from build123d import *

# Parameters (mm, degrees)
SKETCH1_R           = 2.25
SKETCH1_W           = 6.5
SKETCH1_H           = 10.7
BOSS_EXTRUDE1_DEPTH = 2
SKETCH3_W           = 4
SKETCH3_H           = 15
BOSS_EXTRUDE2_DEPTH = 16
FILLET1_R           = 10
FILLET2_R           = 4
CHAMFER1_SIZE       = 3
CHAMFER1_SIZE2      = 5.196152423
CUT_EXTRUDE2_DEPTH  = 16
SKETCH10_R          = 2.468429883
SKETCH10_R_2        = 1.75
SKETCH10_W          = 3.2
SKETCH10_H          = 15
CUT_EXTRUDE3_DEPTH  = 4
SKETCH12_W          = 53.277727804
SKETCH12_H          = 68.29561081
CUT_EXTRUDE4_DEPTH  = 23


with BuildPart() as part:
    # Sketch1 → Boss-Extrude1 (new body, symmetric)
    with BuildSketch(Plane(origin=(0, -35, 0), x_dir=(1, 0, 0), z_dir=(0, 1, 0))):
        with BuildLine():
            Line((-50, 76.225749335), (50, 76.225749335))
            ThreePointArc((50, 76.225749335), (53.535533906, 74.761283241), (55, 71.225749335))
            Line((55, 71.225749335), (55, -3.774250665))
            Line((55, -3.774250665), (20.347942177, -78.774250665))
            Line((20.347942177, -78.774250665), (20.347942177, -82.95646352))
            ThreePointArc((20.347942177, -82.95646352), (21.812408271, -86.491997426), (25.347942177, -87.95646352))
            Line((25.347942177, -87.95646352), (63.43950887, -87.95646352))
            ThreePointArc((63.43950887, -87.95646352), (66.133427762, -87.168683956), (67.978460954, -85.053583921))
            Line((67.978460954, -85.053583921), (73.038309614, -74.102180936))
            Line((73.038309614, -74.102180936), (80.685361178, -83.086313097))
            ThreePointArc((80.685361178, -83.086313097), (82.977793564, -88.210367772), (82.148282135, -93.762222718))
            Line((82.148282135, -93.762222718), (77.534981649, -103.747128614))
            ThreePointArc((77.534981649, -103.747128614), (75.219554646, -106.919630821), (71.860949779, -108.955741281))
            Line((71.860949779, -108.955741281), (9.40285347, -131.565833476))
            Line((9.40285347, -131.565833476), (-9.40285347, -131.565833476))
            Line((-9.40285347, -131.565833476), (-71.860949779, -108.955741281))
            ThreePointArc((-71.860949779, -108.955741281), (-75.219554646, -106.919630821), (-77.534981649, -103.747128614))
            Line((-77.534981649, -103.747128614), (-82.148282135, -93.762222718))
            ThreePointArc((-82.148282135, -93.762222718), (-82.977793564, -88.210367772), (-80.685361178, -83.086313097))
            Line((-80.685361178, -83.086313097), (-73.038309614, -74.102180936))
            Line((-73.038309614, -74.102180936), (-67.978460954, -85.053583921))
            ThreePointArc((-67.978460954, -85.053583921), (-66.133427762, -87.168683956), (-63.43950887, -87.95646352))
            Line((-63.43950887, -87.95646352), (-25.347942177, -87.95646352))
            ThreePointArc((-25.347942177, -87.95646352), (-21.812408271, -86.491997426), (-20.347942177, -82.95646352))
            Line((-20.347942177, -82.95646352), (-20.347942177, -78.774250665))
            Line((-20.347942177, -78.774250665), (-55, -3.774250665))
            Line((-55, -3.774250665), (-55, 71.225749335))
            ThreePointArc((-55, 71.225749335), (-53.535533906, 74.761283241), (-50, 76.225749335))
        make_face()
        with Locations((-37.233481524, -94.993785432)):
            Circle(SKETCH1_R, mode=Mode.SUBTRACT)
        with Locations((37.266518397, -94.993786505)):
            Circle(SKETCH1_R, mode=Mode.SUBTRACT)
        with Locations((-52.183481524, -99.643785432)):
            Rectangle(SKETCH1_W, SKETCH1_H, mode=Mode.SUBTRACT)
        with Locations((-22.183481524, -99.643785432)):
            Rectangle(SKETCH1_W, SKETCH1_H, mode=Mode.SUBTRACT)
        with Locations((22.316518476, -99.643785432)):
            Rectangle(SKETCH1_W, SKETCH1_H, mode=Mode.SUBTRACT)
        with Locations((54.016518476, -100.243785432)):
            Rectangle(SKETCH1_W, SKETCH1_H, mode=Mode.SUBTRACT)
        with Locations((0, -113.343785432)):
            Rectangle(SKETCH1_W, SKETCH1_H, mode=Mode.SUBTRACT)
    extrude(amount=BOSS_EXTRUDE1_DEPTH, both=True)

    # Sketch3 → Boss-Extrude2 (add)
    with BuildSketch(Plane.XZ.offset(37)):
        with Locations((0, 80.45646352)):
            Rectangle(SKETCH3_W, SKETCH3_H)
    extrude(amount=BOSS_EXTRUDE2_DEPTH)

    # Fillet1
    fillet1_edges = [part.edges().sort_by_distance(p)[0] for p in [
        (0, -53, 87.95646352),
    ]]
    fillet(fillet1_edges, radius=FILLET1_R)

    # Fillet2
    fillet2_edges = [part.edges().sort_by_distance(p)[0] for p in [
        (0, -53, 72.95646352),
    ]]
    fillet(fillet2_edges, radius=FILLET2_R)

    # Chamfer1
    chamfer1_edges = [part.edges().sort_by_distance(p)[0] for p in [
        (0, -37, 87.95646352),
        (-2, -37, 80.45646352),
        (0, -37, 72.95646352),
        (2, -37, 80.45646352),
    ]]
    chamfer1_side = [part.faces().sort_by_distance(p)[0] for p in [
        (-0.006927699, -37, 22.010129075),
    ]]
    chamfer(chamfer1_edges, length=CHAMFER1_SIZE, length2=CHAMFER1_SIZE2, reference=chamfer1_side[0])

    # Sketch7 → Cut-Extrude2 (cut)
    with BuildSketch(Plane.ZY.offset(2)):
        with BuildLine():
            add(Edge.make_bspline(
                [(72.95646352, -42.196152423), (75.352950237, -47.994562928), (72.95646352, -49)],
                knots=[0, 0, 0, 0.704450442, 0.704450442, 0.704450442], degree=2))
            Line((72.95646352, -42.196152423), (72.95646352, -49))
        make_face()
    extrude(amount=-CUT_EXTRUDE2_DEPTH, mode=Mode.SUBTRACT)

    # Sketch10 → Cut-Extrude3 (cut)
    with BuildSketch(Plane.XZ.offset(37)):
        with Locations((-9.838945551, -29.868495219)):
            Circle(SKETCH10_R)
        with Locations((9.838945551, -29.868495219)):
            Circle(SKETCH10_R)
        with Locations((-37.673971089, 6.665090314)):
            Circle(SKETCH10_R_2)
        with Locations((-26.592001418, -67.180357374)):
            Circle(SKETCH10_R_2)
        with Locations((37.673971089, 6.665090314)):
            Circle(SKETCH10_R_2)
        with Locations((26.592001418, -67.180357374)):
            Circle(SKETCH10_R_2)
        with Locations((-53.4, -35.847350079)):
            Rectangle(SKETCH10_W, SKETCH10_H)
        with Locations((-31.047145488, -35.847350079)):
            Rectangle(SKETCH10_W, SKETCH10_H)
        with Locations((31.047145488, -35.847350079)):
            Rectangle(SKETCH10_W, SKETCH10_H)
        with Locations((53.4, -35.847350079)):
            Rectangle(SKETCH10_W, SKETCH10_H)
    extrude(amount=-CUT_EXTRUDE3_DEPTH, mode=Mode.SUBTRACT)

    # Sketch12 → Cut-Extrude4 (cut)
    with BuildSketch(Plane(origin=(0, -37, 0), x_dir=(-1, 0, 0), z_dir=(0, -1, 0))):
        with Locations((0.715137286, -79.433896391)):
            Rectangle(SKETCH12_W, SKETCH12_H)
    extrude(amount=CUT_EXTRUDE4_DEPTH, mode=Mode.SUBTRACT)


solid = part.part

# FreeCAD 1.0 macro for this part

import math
import FreeCAD as App
import Part
import Sketcher
Q = App.Units.Quantity


def edges_at(feature, points):
    """Names of the edges that pass closest to the given points."""
    edges = feature.Shape.Edges
    near = lambda p: min(range(len(edges)), key=lambda i: edges[i].distToShape(Part.Vertex(*p))[0])
    return sorted({f"Edge{near(p) + 1}" for p in points})


def add_polygon(sketch, points):
    """Adds a closed chain of lines whose ends are joined by coincident constraints."""
    first, n = sketch.GeometryCount, len(points)
    for a, b in zip(points, points[1:] + points[:1]):
        sketch.addGeometry(Part.LineSegment(App.Vector(*a, 0), App.Vector(*b, 0)), False)
    for i in range(n):
        sketch.addConstraint(Sketcher.Constraint("Coincident", first + i, 2, first + (i + 1) % n, 1))

doc = App.newDocument("Part")
body = doc.addObject("PartDesign::Body", "Body")

sketch1 = body.newObject("Sketcher::SketchObject", "Sketch")
sketch1.AttachmentSupport = (doc.getObject("XZ_Plane"), [""])
sketch1.MapMode = "FlatFace"
sketch1.AttachmentOffset = App.Placement(App.Vector(0, 0, 35), App.Rotation())
sketch1.addGeometry(Part.LineSegment(App.Vector(50, -76.2, 0), App.Vector(-50, -76.2, 0)), False)
sketch1.addGeometry(Part.ArcOfCircle(Part.Circle(App.Vector(-50, -71.2, 0), App.Vector(0, 0, 1), 5), math.radians(180), math.radians(270)), False)
sketch1.addGeometry(Part.LineSegment(App.Vector(-55, -71.2, 0), App.Vector(-55, 3.8, 0)), False)
sketch1.addGeometry(Part.LineSegment(App.Vector(-55, 3.8, 0), App.Vector(-20.3, 78.8, 0)), False)
sketch1.addGeometry(Part.LineSegment(App.Vector(-20.3, 78.8, 0), App.Vector(-20.3, 83, 0)), False)
sketch1.addGeometry(Part.ArcOfCircle(Part.Circle(App.Vector(-25.3, 83, 0), App.Vector(0, 0, 1), 5), math.radians(0), math.radians(90)), False)
sketch1.addGeometry(Part.LineSegment(App.Vector(-25.3, 88, 0), App.Vector(-63.4, 88, 0)), False)
sketch1.addGeometry(Part.ArcOfCircle(Part.Circle(App.Vector(-63.4, 83, 0), App.Vector(0, 0, 1), 5), math.radians(90), math.radians(155)), False)
sketch1.addGeometry(Part.LineSegment(App.Vector(-68, 85.1, 0), App.Vector(-73, 74.1, 0)), False)
sketch1.addGeometry(Part.LineSegment(App.Vector(-73, 74.1, 0), App.Vector(-80.7, 83.1, 0)), False)
sketch1.addGeometry(Part.ArcOfCircle(Part.Circle(App.Vector(-73.1, 89.6, 0), App.Vector(0, 0, 1), 10), math.radians(155), math.radians(220)), False)
sketch1.addGeometry(Part.LineSegment(App.Vector(-82.1, 93.8, 0), App.Vector(-77.5, 103.7, 0)), False)
sketch1.addGeometry(Part.ArcOfCircle(Part.Circle(App.Vector(-68.5, 99.6, 0), App.Vector(0, 0, 1), 10), math.radians(110), math.radians(155)), False)
sketch1.addGeometry(Part.LineSegment(App.Vector(-71.9, 109, 0), App.Vector(-9.4, 131.6, 0)), False)
sketch1.addGeometry(Part.LineSegment(App.Vector(-9.4, 131.6, 0), App.Vector(9.4, 131.6, 0)), False)
sketch1.addGeometry(Part.LineSegment(App.Vector(9.4, 131.6, 0), App.Vector(71.9, 109, 0)), False)
sketch1.addGeometry(Part.ArcOfCircle(Part.Circle(App.Vector(68.5, 99.6, 0), App.Vector(0, 0, 1), 10), math.radians(25), math.radians(70)), False)
sketch1.addGeometry(Part.LineSegment(App.Vector(77.5, 103.7, 0), App.Vector(82.1, 93.8, 0)), False)
sketch1.addGeometry(Part.ArcOfCircle(Part.Circle(App.Vector(73.1, 89.6, 0), App.Vector(0, 0, 1), 10), math.radians(-40), math.radians(25)), False)
sketch1.addGeometry(Part.LineSegment(App.Vector(80.7, 83.1, 0), App.Vector(73, 74.1, 0)), False)
sketch1.addGeometry(Part.LineSegment(App.Vector(73, 74.1, 0), App.Vector(68, 85.1, 0)), False)
sketch1.addGeometry(Part.ArcOfCircle(Part.Circle(App.Vector(63.4, 83, 0), App.Vector(0, 0, 1), 5), math.radians(25), math.radians(90)), False)
sketch1.addGeometry(Part.LineSegment(App.Vector(63.4, 88, 0), App.Vector(25.3, 88, 0)), False)
sketch1.addGeometry(Part.ArcOfCircle(Part.Circle(App.Vector(25.3, 83, 0), App.Vector(0, 0, 1), 5), math.radians(90), math.radians(180)), False)
sketch1.addGeometry(Part.LineSegment(App.Vector(20.3, 83, 0), App.Vector(20.3, 78.8, 0)), False)
sketch1.addGeometry(Part.LineSegment(App.Vector(20.3, 78.8, 0), App.Vector(55, 3.8, 0)), False)
sketch1.addGeometry(Part.LineSegment(App.Vector(55, 3.8, 0), App.Vector(55, -71.2, 0)), False)
sketch1.addGeometry(Part.ArcOfCircle(Part.Circle(App.Vector(50, -71.2, 0), App.Vector(0, 0, 1), 5), math.radians(-90), math.radians(0)), False)
add_polygon(sketch1, [(-3.2, 118.7), (-3.2, 108), (3.2, 108), (3.2, 118.7)])
add_polygon(sketch1, [(50.8, 105.6), (50.8, 94.9), (57.3, 94.9), (57.3, 105.6)])
add_polygon(sketch1, [(19.1, 105), (19.1, 94.3), (25.6, 94.3), (25.6, 105)])
sketch1.addGeometry(Part.Circle(App.Vector(37.3, 95, 0), App.Vector(0, 0, 1), 2.2), False)
add_polygon(sketch1, [(-25.4, 105), (-25.4, 94.3), (-18.9, 94.3), (-18.9, 105)])
add_polygon(sketch1, [(-55.4, 105), (-55.4, 94.3), (-48.9, 94.3), (-48.9, 105)])
sketch1.addGeometry(Part.Circle(App.Vector(-37.2, 95, 0), App.Vector(0, 0, 1), 2.2), False)
sketch1.addConstraint([
    Sketcher.Constraint("Tangent", 0, 2, 1, 2),
    Sketcher.Constraint("Tangent", 1, 1, 2, 1),
    Sketcher.Constraint("Coincident", 2, 2, 3, 1),
    Sketcher.Constraint("Coincident", 3, 2, 4, 1),
    Sketcher.Constraint("Tangent", 4, 2, 5, 1),
    Sketcher.Constraint("Tangent", 5, 2, 6, 1),
    Sketcher.Constraint("Tangent", 6, 2, 7, 1),
    Sketcher.Constraint("Tangent", 7, 2, 8, 1),
    Sketcher.Constraint("Coincident", 8, 2, 9, 1),
    Sketcher.Constraint("Tangent", 9, 2, 10, 2),
    Sketcher.Constraint("Tangent", 10, 1, 11, 1),
    Sketcher.Constraint("Tangent", 11, 2, 12, 2),
    Sketcher.Constraint("Tangent", 12, 1, 13, 1),
    Sketcher.Constraint("Coincident", 13, 2, 14, 1),
    Sketcher.Constraint("Coincident", 14, 2, 15, 1),
    Sketcher.Constraint("Tangent", 15, 2, 16, 2),
    Sketcher.Constraint("Tangent", 16, 1, 17, 1),
    Sketcher.Constraint("Tangent", 17, 2, 18, 2),
    Sketcher.Constraint("Tangent", 18, 1, 19, 1),
    Sketcher.Constraint("Coincident", 19, 2, 20, 1),
    Sketcher.Constraint("Tangent", 20, 2, 21, 1),
    Sketcher.Constraint("Tangent", 21, 2, 22, 1),
    Sketcher.Constraint("Tangent", 22, 2, 23, 1),
    Sketcher.Constraint("Tangent", 23, 2, 24, 1),
    Sketcher.Constraint("Coincident", 24, 2, 25, 1),
    Sketcher.Constraint("Coincident", 25, 2, 26, 1),
    Sketcher.Constraint("Tangent", 26, 2, 27, 2),
    Sketcher.Constraint("Tangent", 27, 1, 0, 1),
    Sketcher.Constraint("Horizontal", 0),
    Sketcher.Constraint("Vertical", 2),
    Sketcher.Constraint("Vertical", 4),
    Sketcher.Constraint("Horizontal", 6),
    Sketcher.Constraint("Horizontal", 14),
    Sketcher.Constraint("Horizontal", 22),
    Sketcher.Constraint("Vertical", 24),
    Sketcher.Constraint("Vertical", 26),
    Sketcher.Constraint("Vertical", 28),
    Sketcher.Constraint("Horizontal", 29),
    Sketcher.Constraint("Vertical", 30),
    Sketcher.Constraint("Horizontal", 31),
    Sketcher.Constraint("Vertical", 32),
    Sketcher.Constraint("Horizontal", 33),
    Sketcher.Constraint("Vertical", 34),
    Sketcher.Constraint("Horizontal", 35),
    Sketcher.Constraint("Vertical", 36),
    Sketcher.Constraint("Horizontal", 37),
    Sketcher.Constraint("Vertical", 38),
    Sketcher.Constraint("Horizontal", 39),
    Sketcher.Constraint("Vertical", 41),
    Sketcher.Constraint("Horizontal", 42),
    Sketcher.Constraint("Vertical", 43),
    Sketcher.Constraint("Horizontal", 44),
    Sketcher.Constraint("Vertical", 45),
    Sketcher.Constraint("Horizontal", 46),
    Sketcher.Constraint("Vertical", 47),
    Sketcher.Constraint("Horizontal", 48),
    Sketcher.Constraint("Equal", 1, 5),
    Sketcher.Constraint("Equal", 5, 7),
    Sketcher.Constraint("Equal", 10, 12),
    Sketcher.Constraint("Equal", 12, 16),
    Sketcher.Constraint("Equal", 16, 18),
    Sketcher.Constraint("Equal", 7, 21),
    Sketcher.Constraint("Equal", 21, 23),
    Sketcher.Constraint("Equal", 23, 27),
    Sketcher.Constraint("Equal", 40, 49),
    Sketcher.Constraint("Symmetric", 12, 3, 16, 3, -2),
    Sketcher.Constraint("Symmetric", 10, 3, 18, 3, -2),
    Sketcher.Constraint("Symmetric", 7, 3, 21, 3, -2),
    Sketcher.Constraint("Symmetric", 8, 2, 19, 2, -2),
    Sketcher.Constraint("Symmetric", 3, 2, 24, 2, -2),
    Sketcher.Constraint("Symmetric", 2, 2, 25, 2, -2),
    Sketcher.Constraint("Parallel", 3, 8),
    Sketcher.Constraint("Parallel", 8, 11),
    Sketcher.Constraint("Horizontal", 40, 3, 49, 3),
    Sketcher.Constraint("Horizontal", 12, 1, 15, 2),
    Sketcher.Constraint("Horizontal", 37, 2, 41, 2),
    Sketcher.Constraint("Horizontal", 39, 2, 43, 2),
    Sketcher.Constraint("Horizontal", 42, 2, 45, 2),
    Sketcher.Constraint("Horizontal", 44, 2, 47, 2),
    Sketcher.Constraint("Equal", 31, 33),
    Sketcher.Constraint("Equal", 35, 37),
    Sketcher.Constraint("Equal", 39, 42),
    Sketcher.Constraint("Equal", 44, 46),
    Sketcher.Constraint("Equal", 30, 32),
    Sketcher.Constraint("Equal", 34, 36),
    Sketcher.Constraint("Radius", 1, Q("5 mm")),
    Sketcher.Constraint("Radius", 10, Q("10 mm")),
    Sketcher.Constraint("Diameter", 40, Q("4.5 mm")),
    Sketcher.Constraint("DistanceX", 0, 2, 0, 1, Q("100 mm")),
    Sketcher.Constraint("DistanceY", 2, 1, 2, 2, Q("75 mm")),
    Sketcher.Constraint("DistanceX", 29, 1, 29, 2, Q("6.5 mm")),
    Sketcher.Constraint("DistanceY", 28, 2, 28, 1, Q("10.7 mm")),
    Sketcher.Constraint("DistanceY", 25, 2, 24, 2, Q("75 mm")),
    Sketcher.Constraint("DistanceY", 40, 3, 38, 2, Q("9.999999 mm")),
    Sketcher.Constraint("DistanceY", 39, 2, 29, 2, Q("3 mm")),
    Sketcher.Constraint("DistanceX", 40, 3, 32, 2, Q("13.5 mm")),
    Sketcher.Constraint("DistanceY", 32, 2, 40, 3, Q("0.100001 mm")),
    Sketcher.Constraint("DistanceX", 36, 2, 40, 3, Q("18.2 mm")),
    Sketcher.Constraint("DistanceX", 49, 3, 41, 2, Q("11.8 mm")),
    Sketcher.Constraint("DistanceX", 45, 2, 49, 3, Q("18.2 mm")),
    Sketcher.Constraint("DistanceX", 28, 2, -1, 1, Q("3.25 mm")),
    Sketcher.Constraint("Distance", 8, Q("12.063801 mm")),
    Sketcher.Constraint("DistanceX", 10, 3, 12, 3, Q("4.6133 mm")),
    Sketcher.Constraint("DistanceY", 40, 3, 16, 3, Q("4.559101 mm")),
    Sketcher.Constraint("DistanceY", 7, 2, 49, 3, Q("9.940202 mm")),
    Sketcher.Constraint("DistanceX", 8, 2, 7, 3, Q("9.598801 mm")),
    Sketcher.Constraint("DistanceX", 9, 2, 7, 2, Q("12.7069 mm")),
    Sketcher.Constraint("Distance", 13, Q("66.424619 mm")),
    Sketcher.Constraint("DistanceX", 6, 2, 6, 1, Q("38.091567 mm")),
    Sketcher.Constraint("DistanceX", 14, 1, 14, 2, Q("18.805707 mm")),
    Sketcher.Constraint("DistanceY", 4, 1, 4, 2, Q("4.182213 mm")),
    Sketcher.Constraint("DistanceY", 1, 3, -1, 1, Q("71.225749 mm")),
    Sketcher.Constraint("DistanceX", -1, 1, 40, 3, Q("37.266518 mm")),
    Sketcher.Constraint("DistanceX", 49, 3, -1, 1, Q("37.233482 mm")),
])
pad1 = body.newObject("PartDesign::Pad", "Pad")
pad1.Profile = sketch1
pad1.Length = 4
pad1.Midplane = True

sketch2 = body.newObject("Sketcher::SketchObject", "Sketch001")
sketch2.AttachmentSupport = (doc.getObject("XZ_Plane"), [""])
sketch2.MapMode = "FlatFace"
sketch2.AttachmentOffset = App.Placement(App.Vector(0, 0, 37), App.Rotation())
add_polygon(sketch2, [(-2, 88), (-2, 73), (2, 73), (2, 88)])
sketch2.addConstraint([
    Sketcher.Constraint("Vertical", 0),
    Sketcher.Constraint("Horizontal", 1),
    Sketcher.Constraint("Vertical", 2),
    Sketcher.Constraint("Horizontal", 3),
    Sketcher.Constraint("DistanceX", 1, 1, 1, 2, Q("4 mm")),
    Sketcher.Constraint("DistanceY", 0, 2, 0, 1, Q("15 mm")),
    Sketcher.Constraint("DistanceX", 0, 2, -1, 1, Q("2 mm")),
    Sketcher.Constraint("DistanceY", -1, 1, 0, 2, Q("72.956464 mm")),
])
pad2 = body.newObject("PartDesign::Pad", "Pad001")
pad2.Profile = sketch2
pad2.Length = 16
doc.recompute()

fillet = body.newObject("PartDesign::Fillet", "Fillet")
fillet.Base = (pad2, edges_at(pad2, [(0, -53, 87.956)]))
fillet.Radius = 10
doc.recompute()

fillet2 = body.newObject("PartDesign::Fillet", "Fillet001")
fillet2.Base = (fillet, edges_at(fillet, [(0, -53, 72.956)]))
fillet2.Radius = 4
doc.recompute()

chamfer = body.newObject("PartDesign::Chamfer", "Chamfer")
chamfer.Base = (fillet2, edges_at(fillet2, [
    (0, -37, 87.956),
    (-2, -37, 80.456),
    (0, -37, 72.956),
    (2, -37, 80.456),
]))
chamfer.ChamferType = "Two distances"
chamfer.Size = 3
chamfer.Size2 = 5.196152
chamfer.FlipDirection = True

sketch3 = body.newObject("Sketcher::SketchObject", "Sketch002")
sketch3.AttachmentSupport = (doc.getObject("YZ_Plane"), [""])
sketch3.MapMode = "FlatFace"
sketch3.AttachmentOffset = App.Placement(App.Vector(0, 0, -2), App.Rotation())
sketch3.addGeometry([
    Part.BSplineCurve([App.Vector(-42.196152, 72.956464, 0), App.Vector(-47.994563, 75.35295, 0), App.Vector(-49, 72.956464, 0)], [3, 3], [0, 0.704450442], False, 2, [1, 1, 1], False),
    Part.LineSegment(App.Vector(-42.196152, 72.956464, 0), App.Vector(-49, 72.956464, 0)),
], False)
sketch3.addConstraint([
    Sketcher.Constraint("Block", 0),
    Sketcher.Constraint("Coincident", 0, 1, 1, 1),
    Sketcher.Constraint("Coincident", 1, 2, 0, 2),
])
pocket1 = body.newObject("PartDesign::Pocket", "Pocket")
pocket1.Profile = sketch3
pocket1.Length = 16
pocket1.Reversed = True

sketch4 = body.newObject("Sketcher::SketchObject", "Sketch003")
sketch4.AttachmentSupport = (doc.getObject("XZ_Plane"), [""])
sketch4.MapMode = "FlatFace"
sketch4.AttachmentOffset = App.Placement(App.Vector(0, 0, 37), App.Rotation())
sketch4.addGeometry(Part.Circle(App.Vector(-9.8, -29.9, 0), App.Vector(0, 0, 1), 2.5), False)
sketch4.addGeometry(Part.Circle(App.Vector(9.8, -29.9, 0), App.Vector(0, 0, 1), 2.5), False)
sketch4.addGeometry(Part.Circle(App.Vector(-37.7, 6.7, 0), App.Vector(0, 0, 1), 1.8), False)
sketch4.addGeometry(Part.Circle(App.Vector(-26.6, -67.2, 0), App.Vector(0, 0, 1), 1.8), False)
sketch4.addGeometry(Part.Circle(App.Vector(37.7, 6.7, 0), App.Vector(0, 0, 1), 1.8), False)
sketch4.addGeometry(Part.Circle(App.Vector(26.6, -67.2, 0), App.Vector(0, 0, 1), 1.8), False)
add_polygon(sketch4, [(-55, -28.3), (-55, -43.3), (-51.8, -43.3), (-51.8, -28.3)])
add_polygon(sketch4, [(-32.6, -28.3), (-32.6, -43.3), (-29.4, -43.3), (-29.4, -28.3)])
add_polygon(sketch4, [(29.4, -28.3), (29.4, -43.3), (32.6, -43.3), (32.6, -28.3)])
add_polygon(sketch4, [(51.8, -28.3), (51.8, -43.3), (55, -43.3), (55, -28.3)])
sketch4.addConstraint([
    Sketcher.Constraint("Vertical", 6),
    Sketcher.Constraint("Horizontal", 7),
    Sketcher.Constraint("Vertical", 8),
    Sketcher.Constraint("Horizontal", 9),
    Sketcher.Constraint("Vertical", 10),
    Sketcher.Constraint("Horizontal", 11),
    Sketcher.Constraint("Vertical", 12),
    Sketcher.Constraint("Horizontal", 13),
    Sketcher.Constraint("Vertical", 14),
    Sketcher.Constraint("Horizontal", 15),
    Sketcher.Constraint("Vertical", 16),
    Sketcher.Constraint("Horizontal", 17),
    Sketcher.Constraint("Vertical", 18),
    Sketcher.Constraint("Horizontal", 19),
    Sketcher.Constraint("Vertical", 20),
    Sketcher.Constraint("Horizontal", 21),
    Sketcher.Constraint("Equal", 0, 1),
    Sketcher.Constraint("Equal", 2, 3),
    Sketcher.Constraint("Equal", 3, 4),
    Sketcher.Constraint("Equal", 4, 5),
    Sketcher.Constraint("Symmetric", 0, 3, 1, 3, -2),
    Sketcher.Constraint("Symmetric", 2, 3, 4, 3, -2),
    Sketcher.Constraint("Symmetric", 3, 3, 5, 3, -2),
    Sketcher.Constraint("Symmetric", 11, 2, 14, 2, -2),
    Sketcher.Constraint("Symmetric", 13, 2, 16, 2, -2),
    Sketcher.Constraint("Symmetric", 7, 2, 18, 2, -2),
    Sketcher.Constraint("Symmetric", 9, 2, 20, 2, -2),
    Sketcher.Constraint("Horizontal", 7, 2, 10, 2),
    Sketcher.Constraint("Horizontal", 9, 2, 12, 2),
    Sketcher.Constraint("Equal", 9, 11),
    Sketcher.Constraint("Diameter", 2, Q("3.5 mm")),
    Sketcher.Constraint("DistanceY", 6, 2, 6, 1, Q("15 mm")),
    Sketcher.Constraint("DistanceX", 7, 1, 7, 2, Q("3.2 mm")),
    Sketcher.Constraint("DistanceX", 6, 2, -1, 1, Q("55 mm")),
    Sketcher.Constraint("Diameter", 0, Q("4.93686 mm")),
    Sketcher.Constraint("DistanceX", 3, 3, -1, 1, Q("26.592001 mm")),
    Sketcher.Constraint("DistanceX", 10, 2, 0, 3, Q("22.8082 mm")),
    Sketcher.Constraint("DistanceX", 2, 3, -1, 1, Q("37.673971 mm")),
    Sketcher.Constraint("DistanceY", -1, 1, 2, 3, Q("6.66509 mm")),
    Sketcher.Constraint("DistanceY", 6, 2, -1, 1, Q("43.34735 mm")),
    Sketcher.Constraint("DistanceX", 0, 3, 1, 3, Q("19.677891 mm")),
    Sketcher.Constraint("DistanceY", 0, 3, -1, 1, Q("29.868495 mm")),
    Sketcher.Constraint("DistanceY", 3, 3, -1, 1, Q("67.180357 mm")),
])
pocket2 = body.newObject("PartDesign::Pocket", "Pocket001")
pocket2.Profile = sketch4
pocket2.Length = 4

sketch5 = body.newObject("Sketcher::SketchObject", "Sketch004")
sketch5.AttachmentSupport = (doc.getObject("XZ_Plane"), [""])
sketch5.MapMode = "FlatFace"
sketch5.AttachmentOffset = App.Placement(App.Vector(0, 0, 37), App.Rotation())
add_polygon(sketch5, [(26, 45), (26, 114), (-27, 114), (-27, 45)])
sketch5.addConstraint([
    Sketcher.Constraint("Vertical", 0),
    Sketcher.Constraint("Horizontal", 1),
    Sketcher.Constraint("Vertical", 2),
    Sketcher.Constraint("Horizontal", 3),
    Sketcher.Constraint("DistanceX", 1, 2, -1, 1, Q("27.354001 mm")),
    Sketcher.Constraint("DistanceY", 0, 1, 0, 2, Q("68.295611 mm")),
    Sketcher.Constraint("DistanceY", -1, 1, 0, 2, Q("113.581702 mm")),
    Sketcher.Constraint("DistanceX", 1, 2, 1, 1, Q("53.277728 mm")),
])
pocket3 = body.newObject("PartDesign::Pocket", "Pocket002")
pocket3.Profile = sketch5
pocket3.Length = 23
pocket3.Reversed = True

doc.recompute()
